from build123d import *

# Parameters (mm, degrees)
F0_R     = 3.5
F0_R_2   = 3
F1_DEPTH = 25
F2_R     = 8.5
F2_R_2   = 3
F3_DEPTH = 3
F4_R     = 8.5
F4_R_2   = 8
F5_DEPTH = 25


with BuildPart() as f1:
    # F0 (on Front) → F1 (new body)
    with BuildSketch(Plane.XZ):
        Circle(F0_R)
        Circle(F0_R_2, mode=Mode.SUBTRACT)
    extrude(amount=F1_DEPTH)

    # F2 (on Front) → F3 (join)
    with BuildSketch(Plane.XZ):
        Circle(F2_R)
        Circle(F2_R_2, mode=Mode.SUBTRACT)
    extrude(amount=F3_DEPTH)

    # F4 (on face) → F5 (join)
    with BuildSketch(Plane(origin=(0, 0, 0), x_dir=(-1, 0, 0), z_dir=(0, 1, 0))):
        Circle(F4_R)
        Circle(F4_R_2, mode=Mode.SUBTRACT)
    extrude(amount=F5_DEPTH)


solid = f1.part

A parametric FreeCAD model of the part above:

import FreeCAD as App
import Part
import Sketcher
from FreeCAD import Vector
Q = App.Units.Quantity

doc = App.newDocument("Part")
params = doc.addObject("Spreadsheet::Sheet", "Params")
for row, (alias, value) in enumerate([
    ("sketch1_diameter", "7 mm"),
    ("sketch1_diameter2", "6 mm"),
    ("pad1_length", "25 mm"),
    ("sketch2_diameter", "17 mm"),
    ("sketch2_diameter2", "6 mm"),
    ("pad2_length", "3 mm"),
    ("sketch3_diameter", "17 mm"),
    ("sketch3_diameter2", "16 mm"),
    ("pad3_length", "25 mm"),
], start=1):
    params.set(f"A{row}", alias)
    params.set(f"B{row}", "=" + value)
    params.setAlias(f"B{row}", alias)

body = doc.addObject("PartDesign::Body", "Body")

# Sketch on XZ plane
sketch1 = doc.addObject("Sketcher::SketchObject", "Sketch")
body.addObject(sketch1)
sketch1.AttachmentSupport = (doc.XZ_Plane, [""])
sketch1.MapMode = "FlatFace"
sketch1.addGeometry(Part.Circle(Vector(0, 0, 0), Vector(0, 0, 1), 3.5), False)
sketch1.addGeometry(Part.Circle(Vector(0, 0, 0), Vector(0, 0, 1), 3), False)
sketch1.addConstraint(Sketcher.Constraint("Coincident", 0, 3, -1, 1))
sketch1.addConstraint(Sketcher.Constraint("Coincident", 1, 3, -1, 1))
sketch1.addConstraint(Sketcher.Constraint("Diameter", 0, Q("7 mm")))
sketch1.addConstraint(Sketcher.Constraint("Diameter", 1, Q("6 mm")))
sketch1.setExpression("Constraints[2]", "Params.sketch1_diameter")
sketch1.setExpression("Constraints[3]", "Params.sketch1_diameter2")
pad1 = doc.addObject("PartDesign::Pad", "Pad")
body.addObject(pad1)
pad1.Profile = sketch1
pad1.setExpression("Length", "Params.pad1_length")

# Sketch on XZ plane
sketch2 = doc.addObject("Sketcher::SketchObject", "Sketch001")
body.addObject(sketch2)
sketch2.AttachmentSupport = (doc.XZ_Plane, [""])
sketch2.MapMode = "FlatFace"
sketch2.addGeometry(Part.Circle(Vector(0, 0, 0), Vector(0, 0, 1), 8.5), False)
sketch2.addGeometry(Part.Circle(Vector(0, 0, 0), Vector(0, 0, 1), 3), False)
sketch2.addConstraint(Sketcher.Constraint("Coincident", 0, 3, -1, 1))
sketch2.addConstraint(Sketcher.Constraint("Coincident", 1, 3, -1, 1))
sketch2.addConstraint(Sketcher.Constraint("Diameter", 0, Q("17 mm")))
sketch2.addConstraint(Sketcher.Constraint("Diameter", 1, Q("6 mm")))
sketch2.setExpression("Constraints[2]", "Params.sketch2_diameter")
sketch2.setExpression("Constraints[3]", "Params.sketch2_diameter2")
pad2 = doc.addObject("PartDesign::Pad", "Pad001")
body.addObject(pad2)
pad2.Profile = sketch2
pad2.setExpression("Length", "Params.pad2_length")

# Sketch on XZ plane
sketch3 = doc.addObject("Sketcher::SketchObject", "Sketch002")
body.addObject(sketch3)
sketch3.AttachmentSupport = (doc.XZ_Plane, [""])
sketch3.MapMode = "FlatFace"
sketch3.addGeometry(Part.Circle(Vector(0, 0, 0), Vector(0, 0, 1), 8), False)
sketch3.addGeometry(Part.Circle(Vector(0, 0, 0), Vector(0, 0, 1), 8), False)
sketch3.addConstraint(Sketcher.Constraint("Coincident", 0, 3, -1, 1))
sketch3.addConstraint(Sketcher.Constraint("Coincident", 1, 3, -1, 1))
sketch3.addConstraint(Sketcher.Constraint("Diameter", 0, Q("17 mm")))
sketch3.addConstraint(Sketcher.Constraint("Diameter", 1, Q("16 mm")))
sketch3.setExpression("Constraints[2]", "Params.sketch3_diameter")
sketch3.setExpression("Constraints[3]", "Params.sketch3_diameter2")
pad3 = doc.addObject("PartDesign::Pad", "Pad002")
body.addObject(pad3)
pad3.Profile = sketch3
pad3.setExpression("Length", "Params.pad3_length")
pad3.Reversed = True

doc.recompute()
